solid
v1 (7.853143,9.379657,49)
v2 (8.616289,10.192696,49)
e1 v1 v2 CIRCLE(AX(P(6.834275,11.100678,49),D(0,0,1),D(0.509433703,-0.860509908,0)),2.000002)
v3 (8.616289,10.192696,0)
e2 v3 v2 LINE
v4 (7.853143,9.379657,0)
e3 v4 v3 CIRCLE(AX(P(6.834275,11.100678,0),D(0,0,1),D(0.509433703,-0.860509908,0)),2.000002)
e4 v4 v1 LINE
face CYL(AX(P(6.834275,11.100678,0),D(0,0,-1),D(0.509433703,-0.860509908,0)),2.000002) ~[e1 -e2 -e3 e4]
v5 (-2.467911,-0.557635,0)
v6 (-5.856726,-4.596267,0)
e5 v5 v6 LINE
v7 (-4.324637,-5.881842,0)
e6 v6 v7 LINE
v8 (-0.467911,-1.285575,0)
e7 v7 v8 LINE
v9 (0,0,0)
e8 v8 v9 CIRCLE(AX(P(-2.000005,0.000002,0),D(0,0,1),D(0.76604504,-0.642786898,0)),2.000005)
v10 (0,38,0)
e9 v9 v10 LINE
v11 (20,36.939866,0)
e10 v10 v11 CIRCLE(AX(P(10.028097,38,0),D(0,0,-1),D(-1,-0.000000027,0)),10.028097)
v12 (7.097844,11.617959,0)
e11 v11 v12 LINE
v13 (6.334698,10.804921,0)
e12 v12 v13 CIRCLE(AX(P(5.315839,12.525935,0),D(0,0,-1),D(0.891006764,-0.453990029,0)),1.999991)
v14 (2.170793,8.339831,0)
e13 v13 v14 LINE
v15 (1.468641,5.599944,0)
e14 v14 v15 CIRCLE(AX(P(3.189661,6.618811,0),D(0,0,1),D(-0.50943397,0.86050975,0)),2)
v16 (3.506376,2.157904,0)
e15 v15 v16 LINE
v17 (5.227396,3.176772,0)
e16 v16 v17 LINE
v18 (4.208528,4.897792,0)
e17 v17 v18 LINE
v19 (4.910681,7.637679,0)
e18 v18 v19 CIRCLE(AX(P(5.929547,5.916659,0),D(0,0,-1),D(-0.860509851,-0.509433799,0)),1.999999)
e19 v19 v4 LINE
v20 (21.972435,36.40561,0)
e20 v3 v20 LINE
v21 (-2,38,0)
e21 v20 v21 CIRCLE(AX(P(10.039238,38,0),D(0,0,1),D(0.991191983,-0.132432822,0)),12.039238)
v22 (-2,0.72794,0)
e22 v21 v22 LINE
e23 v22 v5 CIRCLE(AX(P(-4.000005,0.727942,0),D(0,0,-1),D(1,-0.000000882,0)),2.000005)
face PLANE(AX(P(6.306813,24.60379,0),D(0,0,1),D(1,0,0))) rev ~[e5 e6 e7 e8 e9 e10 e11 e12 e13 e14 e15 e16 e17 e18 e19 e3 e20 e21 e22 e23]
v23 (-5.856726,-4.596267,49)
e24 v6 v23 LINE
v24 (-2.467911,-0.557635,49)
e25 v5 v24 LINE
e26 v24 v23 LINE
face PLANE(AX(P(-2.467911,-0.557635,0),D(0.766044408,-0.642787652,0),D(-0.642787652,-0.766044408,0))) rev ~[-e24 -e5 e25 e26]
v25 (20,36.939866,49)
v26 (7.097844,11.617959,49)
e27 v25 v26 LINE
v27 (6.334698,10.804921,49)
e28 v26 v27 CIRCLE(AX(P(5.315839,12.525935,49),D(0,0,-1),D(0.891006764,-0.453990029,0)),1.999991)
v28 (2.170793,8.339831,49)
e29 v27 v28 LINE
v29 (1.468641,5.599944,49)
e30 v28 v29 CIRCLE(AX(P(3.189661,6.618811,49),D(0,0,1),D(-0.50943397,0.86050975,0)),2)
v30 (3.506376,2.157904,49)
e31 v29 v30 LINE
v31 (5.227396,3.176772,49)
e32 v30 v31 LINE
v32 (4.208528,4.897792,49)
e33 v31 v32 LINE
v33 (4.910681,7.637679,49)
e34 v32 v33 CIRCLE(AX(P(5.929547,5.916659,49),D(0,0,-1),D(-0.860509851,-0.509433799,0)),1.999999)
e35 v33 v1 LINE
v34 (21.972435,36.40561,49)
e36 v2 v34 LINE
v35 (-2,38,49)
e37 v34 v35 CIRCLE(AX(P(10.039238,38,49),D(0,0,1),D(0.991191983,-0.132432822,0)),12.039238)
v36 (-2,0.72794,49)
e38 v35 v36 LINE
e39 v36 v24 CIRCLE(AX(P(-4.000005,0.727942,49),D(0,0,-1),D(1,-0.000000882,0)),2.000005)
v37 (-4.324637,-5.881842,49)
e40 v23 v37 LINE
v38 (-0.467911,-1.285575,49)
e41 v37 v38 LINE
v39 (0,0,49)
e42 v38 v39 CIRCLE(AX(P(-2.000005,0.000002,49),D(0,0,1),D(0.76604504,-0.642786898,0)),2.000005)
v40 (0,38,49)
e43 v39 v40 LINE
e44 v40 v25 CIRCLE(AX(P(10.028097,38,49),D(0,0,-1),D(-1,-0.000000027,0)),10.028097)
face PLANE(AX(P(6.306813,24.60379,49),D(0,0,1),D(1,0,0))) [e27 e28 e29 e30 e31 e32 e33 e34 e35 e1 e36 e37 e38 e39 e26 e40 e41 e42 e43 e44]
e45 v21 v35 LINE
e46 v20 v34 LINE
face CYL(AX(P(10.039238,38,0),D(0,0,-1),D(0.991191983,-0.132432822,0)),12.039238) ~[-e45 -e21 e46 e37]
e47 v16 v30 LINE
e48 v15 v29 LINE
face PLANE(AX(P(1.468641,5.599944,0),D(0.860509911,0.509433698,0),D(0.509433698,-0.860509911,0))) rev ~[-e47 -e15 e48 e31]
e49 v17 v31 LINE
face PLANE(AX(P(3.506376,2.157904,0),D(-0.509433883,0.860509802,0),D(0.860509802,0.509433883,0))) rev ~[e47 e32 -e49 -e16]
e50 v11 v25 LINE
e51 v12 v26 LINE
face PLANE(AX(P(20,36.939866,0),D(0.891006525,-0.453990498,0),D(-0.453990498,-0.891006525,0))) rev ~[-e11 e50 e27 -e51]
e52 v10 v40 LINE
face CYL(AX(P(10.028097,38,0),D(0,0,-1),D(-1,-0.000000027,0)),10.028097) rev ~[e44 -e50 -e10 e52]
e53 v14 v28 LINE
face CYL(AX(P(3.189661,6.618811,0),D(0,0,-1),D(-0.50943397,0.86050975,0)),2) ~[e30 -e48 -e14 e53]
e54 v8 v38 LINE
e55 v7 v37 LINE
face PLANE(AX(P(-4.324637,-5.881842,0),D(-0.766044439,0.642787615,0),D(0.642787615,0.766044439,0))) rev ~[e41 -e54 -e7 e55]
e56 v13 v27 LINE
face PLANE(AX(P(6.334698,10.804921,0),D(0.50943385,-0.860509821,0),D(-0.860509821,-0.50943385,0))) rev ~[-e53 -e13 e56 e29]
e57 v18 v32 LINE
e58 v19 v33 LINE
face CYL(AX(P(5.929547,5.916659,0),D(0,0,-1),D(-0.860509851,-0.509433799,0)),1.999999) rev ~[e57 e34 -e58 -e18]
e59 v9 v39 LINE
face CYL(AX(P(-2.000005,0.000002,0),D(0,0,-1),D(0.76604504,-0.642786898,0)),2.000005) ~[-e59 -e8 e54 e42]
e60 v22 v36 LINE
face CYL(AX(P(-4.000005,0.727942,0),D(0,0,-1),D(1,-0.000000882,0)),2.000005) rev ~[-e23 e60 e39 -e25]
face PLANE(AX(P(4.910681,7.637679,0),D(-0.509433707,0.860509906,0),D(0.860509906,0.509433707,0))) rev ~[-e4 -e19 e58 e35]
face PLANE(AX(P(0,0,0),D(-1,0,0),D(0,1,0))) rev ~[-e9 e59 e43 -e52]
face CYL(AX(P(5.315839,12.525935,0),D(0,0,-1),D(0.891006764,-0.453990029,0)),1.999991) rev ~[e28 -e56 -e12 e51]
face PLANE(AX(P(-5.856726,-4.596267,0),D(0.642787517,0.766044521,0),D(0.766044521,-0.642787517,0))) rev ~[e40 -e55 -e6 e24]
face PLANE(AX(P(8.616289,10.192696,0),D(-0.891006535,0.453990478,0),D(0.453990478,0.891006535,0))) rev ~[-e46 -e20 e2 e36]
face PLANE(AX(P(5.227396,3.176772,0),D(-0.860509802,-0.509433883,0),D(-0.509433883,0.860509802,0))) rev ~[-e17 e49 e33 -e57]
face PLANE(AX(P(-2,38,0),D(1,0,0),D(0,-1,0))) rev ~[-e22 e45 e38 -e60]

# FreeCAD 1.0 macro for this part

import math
import FreeCAD as App
import Part
import Sketcher

V = App.Vector
Q = App.Units.Quantity

doc = App.newDocument("Part")
body = doc.addObject("PartDesign::Body", "Body")

# Sketch on XY plane
sketch1 = body.newObject("Sketcher::SketchObject", "Sketch")
sketch1.AttachmentSupport = (doc.getObject("XY_Plane"), [""])
sketch1.MapMode = "FlatFace"
sketch1.addGeometry([
    Part.ArcOfCircle(Part.Circle(V(-2, 0, 0), V(0, 0, 1), 2), math.radians(-40), math.radians(0)),  # 0
    Part.LineSegment(V(0, 0, 0), V(0, 38, 0)),  # 1
    Part.ArcOfCircle(Part.Circle(V(10, 38, 0), V(0, 0, 1), 10), math.radians(-6), math.radians(180)),  # 2
    Part.LineSegment(V(20, 36.9, 0), V(7.1, 11.6, 0)),  # 3
    Part.ArcOfCircle(Part.Circle(V(5.3, 12.5, 0), V(0, 0, 1), 2), math.radians(-59), math.radians(-27)),  # 4
    Part.LineSegment(V(6.3, 10.8, 0), V(2.2, 8.3, 0)),  # 5
    Part.ArcOfCircle(Part.Circle(V(3.2, 6.6, 0), V(0, 0, 1), 2), math.radians(121), math.radians(211)),  # 6
    Part.LineSegment(V(1.5, 5.6, 0), V(3.5, 2.2, 0)),  # 7
    Part.LineSegment(V(3.5, 2.2, 0), V(5.2, 3.2, 0)),  # 8
    Part.LineSegment(V(5.2, 3.2, 0), V(4.2, 4.9, 0)),  # 9
    Part.ArcOfCircle(Part.Circle(V(5.9, 5.9, 0), V(0, 0, 1), 2), math.radians(121), math.radians(211)),  # 10
    Part.LineSegment(V(4.9, 7.6, 0), V(7.9, 9.4, 0)),  # 11
    Part.ArcOfCircle(Part.Circle(V(6.8, 11.1, 0), V(0, 0, 1), 2), math.radians(-59), math.radians(-27)),  # 12
    Part.LineSegment(V(8.6, 10.2, 0), V(22, 36.4, 0)),  # 13
    Part.ArcOfCircle(Part.Circle(V(10, 38, 0), V(0, 0, 1), 12), math.radians(-8), math.radians(180)),  # 14
    Part.LineSegment(V(-2, 38, 0), V(-2, 0.7, 0)),  # 15
    Part.ArcOfCircle(Part.Circle(V(-4, 0.7, 0), V(0, 0, 1), 2), math.radians(-40), math.radians(0)),  # 16
    Part.LineSegment(V(-2.5, -0.6, 0), V(-5.9, -4.6, 0)),  # 17
    Part.LineSegment(V(-5.9, -4.6, 0), V(-4.3, -5.9, 0)),  # 18
    Part.LineSegment(V(-4.3, -5.9, 0), V(-0.5, -1.3, 0)),  # 19
], False)
sketch1.addConstraint([
    Sketcher.Constraint("Tangent", 0, 2, 1, 1),
    Sketcher.Constraint("Tangent", 1, 2, 2, 2),
    Sketcher.Constraint("Coincident", 2, 1, 3, 1),
    Sketcher.Constraint("Tangent", 3, 2, 4, 2),
    Sketcher.Constraint("Coincident", 4, 1, 5, 1),
    Sketcher.Constraint("Tangent", 5, 2, 6, 1),
    Sketcher.Constraint("Tangent", 6, 2, 7, 1),
    Sketcher.Constraint("Coincident", 7, 2, 8, 1),
    Sketcher.Constraint("Coincident", 8, 2, 9, 1),
    Sketcher.Constraint("Tangent", 9, 2, 10, 2),
    Sketcher.Constraint("Tangent", 10, 1, 11, 1),
    Sketcher.Constraint("Tangent", 11, 2, 12, 1),
    Sketcher.Constraint("Tangent", 12, 2, 13, 1),
    Sketcher.Constraint("Coincident", 13, 2, 14, 1),
    Sketcher.Constraint("Tangent", 14, 2, 15, 1),
    Sketcher.Constraint("Tangent", 15, 2, 16, 2),
    Sketcher.Constraint("Tangent", 16, 1, 17, 1),
    Sketcher.Constraint("Coincident", 17, 2, 18, 1),
    Sketcher.Constraint("Coincident", 18, 2, 19, 1),
    Sketcher.Constraint("Tangent", 19, 2, 0, 1),
    Sketcher.Constraint("Vertical", 1),
    Sketcher.Constraint("Vertical", 15),
    Sketcher.Constraint("Coincident", 0, 2, -1, 1),
    Sketcher.Constraint("Equal", 6, 10),
    Sketcher.Constraint("Equal", 6, 12),
    Sketcher.Constraint("Equal", 0, 16),
    Sketcher.Constraint("Perpendicular", 5, 7),
    Sketcher.Constraint("Perpendicular", 7, 8),
    Sketcher.Constraint("Perpendicular", 8, 9),
    Sketcher.Constraint("Perpendicular", 9, 11),
    Sketcher.Constraint("Parallel", 3, 13),
    Sketcher.Constraint("Perpendicular", 17, 18),
    Sketcher.Constraint("Perpendicular", 18, 19),
    Sketcher.Constraint("Horizontal", 2, 3, 14, 3),
    Sketcher.Constraint("Equal", 8, 9),
    Sketcher.Constraint("Equal", 9, 18),
    Sketcher.Constraint("Radius", 6, Q("2 mm")),
    Sketcher.Constraint("DistanceY", 1, 1, 1, 2, Q("38 mm")),
    Sketcher.Constraint("Angle", 3, Q("-117 deg")),
    Sketcher.Constraint("Angle", 17, Q("-130.000003 deg")),
    Sketcher.Constraint("Distance", 7, Q("4 mm")),
    Sketcher.Constraint("Distance", 8, Q("2 mm")),
    Sketcher.Constraint("Distance", 19, Q("6 mm")),
    Sketcher.Constraint("DistanceX", -1, 1, 2, 1, Q("20 mm")),
    Sketcher.Constraint("DistanceX", 14, 2, -1, 1, Q("2 mm")),
    Sketcher.Constraint("Radius", 4, Q("1.999991 mm")),
    Sketcher.Constraint("Radius", 14, Q("12.039238 mm")),
    Sketcher.Constraint("Radius", 0, Q("2.000005 mm")),
    Sketcher.Constraint("Radius", 2, Q("10.028097 mm")),
    Sketcher.Constraint("DistanceX", 4, 3, 14, 3, Q("4.7234 mm")),
    Sketcher.Constraint("DistanceY", 10, 3, 3, 2, Q("5.7013 mm")),
    Sketcher.Constraint("DistanceX", 3, 2, 11, 2, Q("0.755299 mm")),
    Sketcher.Constraint("Distance", 5, Q("4.838881 mm")),
    Sketcher.Constraint("Distance", 11, Q("3.41944 mm")),
])
pad1 = body.newObject("PartDesign::Pad", "Pad")
pad1.Profile = sketch1
pad1.Length = 49

doc.recompute()
